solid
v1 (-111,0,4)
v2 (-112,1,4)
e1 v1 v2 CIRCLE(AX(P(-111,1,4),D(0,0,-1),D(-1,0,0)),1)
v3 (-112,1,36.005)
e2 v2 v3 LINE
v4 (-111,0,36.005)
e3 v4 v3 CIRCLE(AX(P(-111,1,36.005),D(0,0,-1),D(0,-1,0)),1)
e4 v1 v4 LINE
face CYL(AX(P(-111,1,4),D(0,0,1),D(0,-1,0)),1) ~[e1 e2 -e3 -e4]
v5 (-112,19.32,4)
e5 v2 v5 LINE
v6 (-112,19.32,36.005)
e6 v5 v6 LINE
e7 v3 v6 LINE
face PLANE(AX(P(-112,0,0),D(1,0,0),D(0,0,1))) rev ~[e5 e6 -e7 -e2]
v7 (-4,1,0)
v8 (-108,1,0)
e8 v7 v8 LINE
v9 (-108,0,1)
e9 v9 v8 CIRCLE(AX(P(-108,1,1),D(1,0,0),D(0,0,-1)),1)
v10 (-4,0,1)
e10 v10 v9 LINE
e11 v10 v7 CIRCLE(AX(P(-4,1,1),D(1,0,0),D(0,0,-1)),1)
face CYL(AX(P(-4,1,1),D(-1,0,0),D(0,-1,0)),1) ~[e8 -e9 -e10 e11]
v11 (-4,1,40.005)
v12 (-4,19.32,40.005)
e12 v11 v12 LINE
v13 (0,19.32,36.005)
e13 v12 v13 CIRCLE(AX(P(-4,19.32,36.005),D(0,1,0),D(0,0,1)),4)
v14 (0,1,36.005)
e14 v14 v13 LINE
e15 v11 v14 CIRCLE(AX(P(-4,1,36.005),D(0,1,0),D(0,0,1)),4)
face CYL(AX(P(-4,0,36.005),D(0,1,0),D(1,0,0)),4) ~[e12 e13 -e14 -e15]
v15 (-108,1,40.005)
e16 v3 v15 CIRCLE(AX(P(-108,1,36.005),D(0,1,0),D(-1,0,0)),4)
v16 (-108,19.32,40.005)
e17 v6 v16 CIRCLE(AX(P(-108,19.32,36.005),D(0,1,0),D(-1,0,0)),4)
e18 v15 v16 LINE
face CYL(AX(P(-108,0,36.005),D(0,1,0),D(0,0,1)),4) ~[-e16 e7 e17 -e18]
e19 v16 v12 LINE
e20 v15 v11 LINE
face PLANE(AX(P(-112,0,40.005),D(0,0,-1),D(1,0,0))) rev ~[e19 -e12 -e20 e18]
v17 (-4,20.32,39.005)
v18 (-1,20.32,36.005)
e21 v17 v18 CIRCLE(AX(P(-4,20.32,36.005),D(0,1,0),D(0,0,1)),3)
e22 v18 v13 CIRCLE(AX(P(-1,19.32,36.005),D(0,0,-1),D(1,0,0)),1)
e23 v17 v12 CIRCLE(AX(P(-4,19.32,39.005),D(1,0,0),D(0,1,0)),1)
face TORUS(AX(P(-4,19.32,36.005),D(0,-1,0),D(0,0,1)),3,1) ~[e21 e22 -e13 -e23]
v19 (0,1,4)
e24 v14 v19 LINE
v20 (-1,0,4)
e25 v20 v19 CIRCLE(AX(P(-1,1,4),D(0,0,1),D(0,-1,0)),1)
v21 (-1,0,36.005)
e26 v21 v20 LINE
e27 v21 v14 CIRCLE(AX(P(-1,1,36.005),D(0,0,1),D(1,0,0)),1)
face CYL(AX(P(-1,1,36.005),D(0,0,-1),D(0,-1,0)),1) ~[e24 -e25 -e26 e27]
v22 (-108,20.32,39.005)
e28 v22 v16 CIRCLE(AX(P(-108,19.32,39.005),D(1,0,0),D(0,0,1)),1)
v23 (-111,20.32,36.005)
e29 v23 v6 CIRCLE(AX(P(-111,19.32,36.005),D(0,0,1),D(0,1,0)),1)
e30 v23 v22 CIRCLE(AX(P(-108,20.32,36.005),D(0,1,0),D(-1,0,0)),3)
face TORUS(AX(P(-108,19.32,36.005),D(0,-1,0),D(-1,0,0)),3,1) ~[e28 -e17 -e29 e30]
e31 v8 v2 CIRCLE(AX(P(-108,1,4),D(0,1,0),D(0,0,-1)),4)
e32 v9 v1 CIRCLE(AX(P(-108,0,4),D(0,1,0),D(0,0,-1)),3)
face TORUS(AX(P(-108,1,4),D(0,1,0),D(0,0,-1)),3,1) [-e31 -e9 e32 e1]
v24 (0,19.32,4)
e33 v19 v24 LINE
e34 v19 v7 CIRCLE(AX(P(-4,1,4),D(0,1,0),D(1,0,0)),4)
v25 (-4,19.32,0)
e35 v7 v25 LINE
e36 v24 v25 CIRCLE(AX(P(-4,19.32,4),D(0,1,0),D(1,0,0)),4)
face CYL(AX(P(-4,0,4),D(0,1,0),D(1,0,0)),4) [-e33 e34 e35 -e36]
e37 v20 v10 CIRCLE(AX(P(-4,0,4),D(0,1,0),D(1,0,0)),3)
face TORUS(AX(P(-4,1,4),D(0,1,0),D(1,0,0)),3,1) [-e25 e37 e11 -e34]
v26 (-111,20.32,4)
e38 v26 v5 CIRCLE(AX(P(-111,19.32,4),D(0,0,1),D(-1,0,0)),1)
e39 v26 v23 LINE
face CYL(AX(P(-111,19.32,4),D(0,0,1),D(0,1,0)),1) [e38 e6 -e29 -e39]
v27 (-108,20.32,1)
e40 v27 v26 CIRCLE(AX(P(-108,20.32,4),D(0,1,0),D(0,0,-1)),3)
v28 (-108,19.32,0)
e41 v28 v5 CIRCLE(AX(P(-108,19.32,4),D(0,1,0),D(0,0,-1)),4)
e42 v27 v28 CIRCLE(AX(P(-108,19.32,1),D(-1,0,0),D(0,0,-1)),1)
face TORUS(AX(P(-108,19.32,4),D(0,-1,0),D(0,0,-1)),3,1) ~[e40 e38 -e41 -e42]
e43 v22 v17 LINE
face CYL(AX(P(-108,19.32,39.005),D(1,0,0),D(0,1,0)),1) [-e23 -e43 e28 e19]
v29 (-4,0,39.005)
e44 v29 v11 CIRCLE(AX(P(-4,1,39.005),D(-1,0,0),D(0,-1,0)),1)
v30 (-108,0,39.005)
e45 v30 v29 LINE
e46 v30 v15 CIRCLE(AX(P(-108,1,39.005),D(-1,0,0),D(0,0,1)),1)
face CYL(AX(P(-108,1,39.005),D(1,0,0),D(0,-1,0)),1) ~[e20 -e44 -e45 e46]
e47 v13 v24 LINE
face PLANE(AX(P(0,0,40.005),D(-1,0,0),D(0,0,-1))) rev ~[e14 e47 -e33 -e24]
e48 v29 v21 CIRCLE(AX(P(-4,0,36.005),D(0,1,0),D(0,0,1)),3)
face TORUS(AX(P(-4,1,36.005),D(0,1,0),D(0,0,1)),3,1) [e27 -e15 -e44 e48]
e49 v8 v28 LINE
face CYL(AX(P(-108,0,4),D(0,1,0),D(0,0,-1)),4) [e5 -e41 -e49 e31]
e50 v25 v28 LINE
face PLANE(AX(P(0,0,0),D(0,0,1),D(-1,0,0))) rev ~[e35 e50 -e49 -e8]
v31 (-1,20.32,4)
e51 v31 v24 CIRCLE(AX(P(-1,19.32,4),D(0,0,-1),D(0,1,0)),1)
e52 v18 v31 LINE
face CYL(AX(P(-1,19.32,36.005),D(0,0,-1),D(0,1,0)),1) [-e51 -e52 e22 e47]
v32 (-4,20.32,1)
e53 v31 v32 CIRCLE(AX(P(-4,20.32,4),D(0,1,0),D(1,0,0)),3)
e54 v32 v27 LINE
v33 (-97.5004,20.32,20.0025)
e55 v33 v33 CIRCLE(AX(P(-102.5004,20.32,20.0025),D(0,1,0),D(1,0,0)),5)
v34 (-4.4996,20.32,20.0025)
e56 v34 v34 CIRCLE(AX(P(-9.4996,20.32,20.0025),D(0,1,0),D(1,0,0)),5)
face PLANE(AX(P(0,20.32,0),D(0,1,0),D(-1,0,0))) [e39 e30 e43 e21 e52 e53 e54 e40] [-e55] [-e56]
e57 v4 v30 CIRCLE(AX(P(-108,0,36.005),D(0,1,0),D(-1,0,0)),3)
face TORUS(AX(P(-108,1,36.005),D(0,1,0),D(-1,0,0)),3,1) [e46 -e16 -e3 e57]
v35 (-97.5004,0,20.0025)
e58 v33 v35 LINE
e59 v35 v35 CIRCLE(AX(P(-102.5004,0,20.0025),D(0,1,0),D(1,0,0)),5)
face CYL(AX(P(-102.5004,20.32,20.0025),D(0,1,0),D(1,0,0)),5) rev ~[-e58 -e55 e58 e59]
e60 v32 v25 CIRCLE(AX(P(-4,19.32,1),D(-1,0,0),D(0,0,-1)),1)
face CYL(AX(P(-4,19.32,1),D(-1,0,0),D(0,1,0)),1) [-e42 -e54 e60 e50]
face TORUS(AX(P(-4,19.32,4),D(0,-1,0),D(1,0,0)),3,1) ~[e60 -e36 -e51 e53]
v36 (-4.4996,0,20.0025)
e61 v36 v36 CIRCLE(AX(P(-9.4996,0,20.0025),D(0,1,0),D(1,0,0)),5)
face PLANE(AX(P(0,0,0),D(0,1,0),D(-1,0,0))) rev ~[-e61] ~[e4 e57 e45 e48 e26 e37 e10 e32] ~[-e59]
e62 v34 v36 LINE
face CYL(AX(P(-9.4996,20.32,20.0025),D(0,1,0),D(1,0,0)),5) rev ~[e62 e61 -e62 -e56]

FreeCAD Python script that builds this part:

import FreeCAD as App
import Part
import Sketcher


def edges_at(feature, points):
    """Names of the edges that pass closest to the given points."""
    edges = feature.Shape.Edges
    near = lambda p: min(range(len(edges)), key=lambda i: edges[i].distToShape(Part.Vertex(*p))[0])
    return sorted({f"Edge{near(p) + 1}" for p in points})

doc = App.newDocument("Part")
body = doc.addObject("PartDesign::Body", "Body")

sketch1 = body.newObject("Sketcher::SketchObject", "Sketch")
sketch1.AttachmentSupport = (doc.getObject("XZ_Plane"), [""])
sketch1.MapMode = "FlatFace"
sketch1.addGeometry([
    Part.LineSegment(App.Vector(0, 40, 0), App.Vector(0, 0, 0)),
    Part.LineSegment(App.Vector(0, 0, 0), App.Vector(-112, 0, 0)),
    Part.LineSegment(App.Vector(-112, 0, 0), App.Vector(-112, 40, 0)),
    Part.LineSegment(App.Vector(-112, 40, 0), App.Vector(0, 40, 0)),
], False)
sketch1.addConstraint([
    Sketcher.Constraint("Coincident", 0, 2, 1, 1),
    Sketcher.Constraint("Coincident", 1, 2, 2, 1),
    Sketcher.Constraint("Coincident", 2, 2, 3, 1),
    Sketcher.Constraint("Coincident", 3, 2, 0, 1),
    Sketcher.Constraint("Vertical", 0),
    Sketcher.Constraint("Horizontal", 1),
    Sketcher.Constraint("Vertical", 2),
    Sketcher.Constraint("Horizontal", 3),
    Sketcher.Constraint("Coincident", 0, 2, -1, 1),
    Sketcher.Constraint("DistanceX", 1, 2, 1, 1, 112.0),
    Sketcher.Constraint("DistanceY", 0, 2, 0, 1, 40.005),
])
pad1 = body.newObject("PartDesign::Pad", "Pad")
pad1.Profile = sketch1
pad1.Length = 20.32
pad1.Reversed = True

sketch2 = body.newObject("Sketcher::SketchObject", "Sketch001")
sketch2.AttachmentSupport = (doc.getObject("XZ_Plane"), [""])
sketch2.MapMode = "FlatFace"
sketch2.AttachmentOffset = App.Placement(App.Vector(0, 0, -20.32), App.Rotation())
sketch2.addGeometry([
    Part.Circle(App.Vector(-9, 20, 0), App.Vector(0, 0, 1), 5),
    Part.Circle(App.Vector(-103, 20, 0), App.Vector(0, 0, 1), 5),
], False)
sketch2.addConstraint([
    Sketcher.Constraint("Equal", 0, 1),
    Sketcher.Constraint("Horizontal", 0, 3, 1, 3),
    Sketcher.Constraint("Diameter", 0, 10.0),
    Sketcher.Constraint("DistanceX", 0, 3, -1, 1, 9.4996),
    Sketcher.Constraint("DistanceY", -1, 1, 0, 3, 20.0025),
    Sketcher.Constraint("DistanceX", 1, 3, -1, 1, 102.5004),
])
pocket1 = body.newObject("PartDesign::Pocket", "Pocket")
pocket1.Profile = sketch2
pocket1.Length = 20.32
pocket1.Reversed = True
doc.recompute()

fillet = body.newObject("PartDesign::Fillet", "Fillet")
fillet.Base = (pocket1, edges_at(pocket1, [
    (-112, 10.16, 40.005),
    (-112, 10.16, 0),
    (0, 10.16, 40.005),
    (0, 10.16, 0),
]))
fillet.Radius = 4
doc.recompute()

fillet2 = body.newObject("PartDesign::Fillet", "Fillet001")
fillet2.Base = (fillet, edges_at(fillet, [
    (-110.828, 0, 1.172),
    (-112, 0, 20.003),
    (-110.828, 0, 38.833),
    (-56, 0, 40.005),
    (-1.172, 0, 38.833),
    (0, 0, 20.003),
    (-1.172, 0, 1.172),
    (-56, 0, 0),
    (-110.828, 20.32, 1.172),
    (-112, 20.32, 20.003),
    (-110.828, 20.32, 38.833),
    (-56, 20.32, 40.005),
    (-1.172, 20.32, 38.833),
    (0, 20.32, 20.003),
    (-1.172, 20.32, 1.172),
    (-56, 20.32, 0),
]))
fillet2.Radius = 1

doc.recompute()
